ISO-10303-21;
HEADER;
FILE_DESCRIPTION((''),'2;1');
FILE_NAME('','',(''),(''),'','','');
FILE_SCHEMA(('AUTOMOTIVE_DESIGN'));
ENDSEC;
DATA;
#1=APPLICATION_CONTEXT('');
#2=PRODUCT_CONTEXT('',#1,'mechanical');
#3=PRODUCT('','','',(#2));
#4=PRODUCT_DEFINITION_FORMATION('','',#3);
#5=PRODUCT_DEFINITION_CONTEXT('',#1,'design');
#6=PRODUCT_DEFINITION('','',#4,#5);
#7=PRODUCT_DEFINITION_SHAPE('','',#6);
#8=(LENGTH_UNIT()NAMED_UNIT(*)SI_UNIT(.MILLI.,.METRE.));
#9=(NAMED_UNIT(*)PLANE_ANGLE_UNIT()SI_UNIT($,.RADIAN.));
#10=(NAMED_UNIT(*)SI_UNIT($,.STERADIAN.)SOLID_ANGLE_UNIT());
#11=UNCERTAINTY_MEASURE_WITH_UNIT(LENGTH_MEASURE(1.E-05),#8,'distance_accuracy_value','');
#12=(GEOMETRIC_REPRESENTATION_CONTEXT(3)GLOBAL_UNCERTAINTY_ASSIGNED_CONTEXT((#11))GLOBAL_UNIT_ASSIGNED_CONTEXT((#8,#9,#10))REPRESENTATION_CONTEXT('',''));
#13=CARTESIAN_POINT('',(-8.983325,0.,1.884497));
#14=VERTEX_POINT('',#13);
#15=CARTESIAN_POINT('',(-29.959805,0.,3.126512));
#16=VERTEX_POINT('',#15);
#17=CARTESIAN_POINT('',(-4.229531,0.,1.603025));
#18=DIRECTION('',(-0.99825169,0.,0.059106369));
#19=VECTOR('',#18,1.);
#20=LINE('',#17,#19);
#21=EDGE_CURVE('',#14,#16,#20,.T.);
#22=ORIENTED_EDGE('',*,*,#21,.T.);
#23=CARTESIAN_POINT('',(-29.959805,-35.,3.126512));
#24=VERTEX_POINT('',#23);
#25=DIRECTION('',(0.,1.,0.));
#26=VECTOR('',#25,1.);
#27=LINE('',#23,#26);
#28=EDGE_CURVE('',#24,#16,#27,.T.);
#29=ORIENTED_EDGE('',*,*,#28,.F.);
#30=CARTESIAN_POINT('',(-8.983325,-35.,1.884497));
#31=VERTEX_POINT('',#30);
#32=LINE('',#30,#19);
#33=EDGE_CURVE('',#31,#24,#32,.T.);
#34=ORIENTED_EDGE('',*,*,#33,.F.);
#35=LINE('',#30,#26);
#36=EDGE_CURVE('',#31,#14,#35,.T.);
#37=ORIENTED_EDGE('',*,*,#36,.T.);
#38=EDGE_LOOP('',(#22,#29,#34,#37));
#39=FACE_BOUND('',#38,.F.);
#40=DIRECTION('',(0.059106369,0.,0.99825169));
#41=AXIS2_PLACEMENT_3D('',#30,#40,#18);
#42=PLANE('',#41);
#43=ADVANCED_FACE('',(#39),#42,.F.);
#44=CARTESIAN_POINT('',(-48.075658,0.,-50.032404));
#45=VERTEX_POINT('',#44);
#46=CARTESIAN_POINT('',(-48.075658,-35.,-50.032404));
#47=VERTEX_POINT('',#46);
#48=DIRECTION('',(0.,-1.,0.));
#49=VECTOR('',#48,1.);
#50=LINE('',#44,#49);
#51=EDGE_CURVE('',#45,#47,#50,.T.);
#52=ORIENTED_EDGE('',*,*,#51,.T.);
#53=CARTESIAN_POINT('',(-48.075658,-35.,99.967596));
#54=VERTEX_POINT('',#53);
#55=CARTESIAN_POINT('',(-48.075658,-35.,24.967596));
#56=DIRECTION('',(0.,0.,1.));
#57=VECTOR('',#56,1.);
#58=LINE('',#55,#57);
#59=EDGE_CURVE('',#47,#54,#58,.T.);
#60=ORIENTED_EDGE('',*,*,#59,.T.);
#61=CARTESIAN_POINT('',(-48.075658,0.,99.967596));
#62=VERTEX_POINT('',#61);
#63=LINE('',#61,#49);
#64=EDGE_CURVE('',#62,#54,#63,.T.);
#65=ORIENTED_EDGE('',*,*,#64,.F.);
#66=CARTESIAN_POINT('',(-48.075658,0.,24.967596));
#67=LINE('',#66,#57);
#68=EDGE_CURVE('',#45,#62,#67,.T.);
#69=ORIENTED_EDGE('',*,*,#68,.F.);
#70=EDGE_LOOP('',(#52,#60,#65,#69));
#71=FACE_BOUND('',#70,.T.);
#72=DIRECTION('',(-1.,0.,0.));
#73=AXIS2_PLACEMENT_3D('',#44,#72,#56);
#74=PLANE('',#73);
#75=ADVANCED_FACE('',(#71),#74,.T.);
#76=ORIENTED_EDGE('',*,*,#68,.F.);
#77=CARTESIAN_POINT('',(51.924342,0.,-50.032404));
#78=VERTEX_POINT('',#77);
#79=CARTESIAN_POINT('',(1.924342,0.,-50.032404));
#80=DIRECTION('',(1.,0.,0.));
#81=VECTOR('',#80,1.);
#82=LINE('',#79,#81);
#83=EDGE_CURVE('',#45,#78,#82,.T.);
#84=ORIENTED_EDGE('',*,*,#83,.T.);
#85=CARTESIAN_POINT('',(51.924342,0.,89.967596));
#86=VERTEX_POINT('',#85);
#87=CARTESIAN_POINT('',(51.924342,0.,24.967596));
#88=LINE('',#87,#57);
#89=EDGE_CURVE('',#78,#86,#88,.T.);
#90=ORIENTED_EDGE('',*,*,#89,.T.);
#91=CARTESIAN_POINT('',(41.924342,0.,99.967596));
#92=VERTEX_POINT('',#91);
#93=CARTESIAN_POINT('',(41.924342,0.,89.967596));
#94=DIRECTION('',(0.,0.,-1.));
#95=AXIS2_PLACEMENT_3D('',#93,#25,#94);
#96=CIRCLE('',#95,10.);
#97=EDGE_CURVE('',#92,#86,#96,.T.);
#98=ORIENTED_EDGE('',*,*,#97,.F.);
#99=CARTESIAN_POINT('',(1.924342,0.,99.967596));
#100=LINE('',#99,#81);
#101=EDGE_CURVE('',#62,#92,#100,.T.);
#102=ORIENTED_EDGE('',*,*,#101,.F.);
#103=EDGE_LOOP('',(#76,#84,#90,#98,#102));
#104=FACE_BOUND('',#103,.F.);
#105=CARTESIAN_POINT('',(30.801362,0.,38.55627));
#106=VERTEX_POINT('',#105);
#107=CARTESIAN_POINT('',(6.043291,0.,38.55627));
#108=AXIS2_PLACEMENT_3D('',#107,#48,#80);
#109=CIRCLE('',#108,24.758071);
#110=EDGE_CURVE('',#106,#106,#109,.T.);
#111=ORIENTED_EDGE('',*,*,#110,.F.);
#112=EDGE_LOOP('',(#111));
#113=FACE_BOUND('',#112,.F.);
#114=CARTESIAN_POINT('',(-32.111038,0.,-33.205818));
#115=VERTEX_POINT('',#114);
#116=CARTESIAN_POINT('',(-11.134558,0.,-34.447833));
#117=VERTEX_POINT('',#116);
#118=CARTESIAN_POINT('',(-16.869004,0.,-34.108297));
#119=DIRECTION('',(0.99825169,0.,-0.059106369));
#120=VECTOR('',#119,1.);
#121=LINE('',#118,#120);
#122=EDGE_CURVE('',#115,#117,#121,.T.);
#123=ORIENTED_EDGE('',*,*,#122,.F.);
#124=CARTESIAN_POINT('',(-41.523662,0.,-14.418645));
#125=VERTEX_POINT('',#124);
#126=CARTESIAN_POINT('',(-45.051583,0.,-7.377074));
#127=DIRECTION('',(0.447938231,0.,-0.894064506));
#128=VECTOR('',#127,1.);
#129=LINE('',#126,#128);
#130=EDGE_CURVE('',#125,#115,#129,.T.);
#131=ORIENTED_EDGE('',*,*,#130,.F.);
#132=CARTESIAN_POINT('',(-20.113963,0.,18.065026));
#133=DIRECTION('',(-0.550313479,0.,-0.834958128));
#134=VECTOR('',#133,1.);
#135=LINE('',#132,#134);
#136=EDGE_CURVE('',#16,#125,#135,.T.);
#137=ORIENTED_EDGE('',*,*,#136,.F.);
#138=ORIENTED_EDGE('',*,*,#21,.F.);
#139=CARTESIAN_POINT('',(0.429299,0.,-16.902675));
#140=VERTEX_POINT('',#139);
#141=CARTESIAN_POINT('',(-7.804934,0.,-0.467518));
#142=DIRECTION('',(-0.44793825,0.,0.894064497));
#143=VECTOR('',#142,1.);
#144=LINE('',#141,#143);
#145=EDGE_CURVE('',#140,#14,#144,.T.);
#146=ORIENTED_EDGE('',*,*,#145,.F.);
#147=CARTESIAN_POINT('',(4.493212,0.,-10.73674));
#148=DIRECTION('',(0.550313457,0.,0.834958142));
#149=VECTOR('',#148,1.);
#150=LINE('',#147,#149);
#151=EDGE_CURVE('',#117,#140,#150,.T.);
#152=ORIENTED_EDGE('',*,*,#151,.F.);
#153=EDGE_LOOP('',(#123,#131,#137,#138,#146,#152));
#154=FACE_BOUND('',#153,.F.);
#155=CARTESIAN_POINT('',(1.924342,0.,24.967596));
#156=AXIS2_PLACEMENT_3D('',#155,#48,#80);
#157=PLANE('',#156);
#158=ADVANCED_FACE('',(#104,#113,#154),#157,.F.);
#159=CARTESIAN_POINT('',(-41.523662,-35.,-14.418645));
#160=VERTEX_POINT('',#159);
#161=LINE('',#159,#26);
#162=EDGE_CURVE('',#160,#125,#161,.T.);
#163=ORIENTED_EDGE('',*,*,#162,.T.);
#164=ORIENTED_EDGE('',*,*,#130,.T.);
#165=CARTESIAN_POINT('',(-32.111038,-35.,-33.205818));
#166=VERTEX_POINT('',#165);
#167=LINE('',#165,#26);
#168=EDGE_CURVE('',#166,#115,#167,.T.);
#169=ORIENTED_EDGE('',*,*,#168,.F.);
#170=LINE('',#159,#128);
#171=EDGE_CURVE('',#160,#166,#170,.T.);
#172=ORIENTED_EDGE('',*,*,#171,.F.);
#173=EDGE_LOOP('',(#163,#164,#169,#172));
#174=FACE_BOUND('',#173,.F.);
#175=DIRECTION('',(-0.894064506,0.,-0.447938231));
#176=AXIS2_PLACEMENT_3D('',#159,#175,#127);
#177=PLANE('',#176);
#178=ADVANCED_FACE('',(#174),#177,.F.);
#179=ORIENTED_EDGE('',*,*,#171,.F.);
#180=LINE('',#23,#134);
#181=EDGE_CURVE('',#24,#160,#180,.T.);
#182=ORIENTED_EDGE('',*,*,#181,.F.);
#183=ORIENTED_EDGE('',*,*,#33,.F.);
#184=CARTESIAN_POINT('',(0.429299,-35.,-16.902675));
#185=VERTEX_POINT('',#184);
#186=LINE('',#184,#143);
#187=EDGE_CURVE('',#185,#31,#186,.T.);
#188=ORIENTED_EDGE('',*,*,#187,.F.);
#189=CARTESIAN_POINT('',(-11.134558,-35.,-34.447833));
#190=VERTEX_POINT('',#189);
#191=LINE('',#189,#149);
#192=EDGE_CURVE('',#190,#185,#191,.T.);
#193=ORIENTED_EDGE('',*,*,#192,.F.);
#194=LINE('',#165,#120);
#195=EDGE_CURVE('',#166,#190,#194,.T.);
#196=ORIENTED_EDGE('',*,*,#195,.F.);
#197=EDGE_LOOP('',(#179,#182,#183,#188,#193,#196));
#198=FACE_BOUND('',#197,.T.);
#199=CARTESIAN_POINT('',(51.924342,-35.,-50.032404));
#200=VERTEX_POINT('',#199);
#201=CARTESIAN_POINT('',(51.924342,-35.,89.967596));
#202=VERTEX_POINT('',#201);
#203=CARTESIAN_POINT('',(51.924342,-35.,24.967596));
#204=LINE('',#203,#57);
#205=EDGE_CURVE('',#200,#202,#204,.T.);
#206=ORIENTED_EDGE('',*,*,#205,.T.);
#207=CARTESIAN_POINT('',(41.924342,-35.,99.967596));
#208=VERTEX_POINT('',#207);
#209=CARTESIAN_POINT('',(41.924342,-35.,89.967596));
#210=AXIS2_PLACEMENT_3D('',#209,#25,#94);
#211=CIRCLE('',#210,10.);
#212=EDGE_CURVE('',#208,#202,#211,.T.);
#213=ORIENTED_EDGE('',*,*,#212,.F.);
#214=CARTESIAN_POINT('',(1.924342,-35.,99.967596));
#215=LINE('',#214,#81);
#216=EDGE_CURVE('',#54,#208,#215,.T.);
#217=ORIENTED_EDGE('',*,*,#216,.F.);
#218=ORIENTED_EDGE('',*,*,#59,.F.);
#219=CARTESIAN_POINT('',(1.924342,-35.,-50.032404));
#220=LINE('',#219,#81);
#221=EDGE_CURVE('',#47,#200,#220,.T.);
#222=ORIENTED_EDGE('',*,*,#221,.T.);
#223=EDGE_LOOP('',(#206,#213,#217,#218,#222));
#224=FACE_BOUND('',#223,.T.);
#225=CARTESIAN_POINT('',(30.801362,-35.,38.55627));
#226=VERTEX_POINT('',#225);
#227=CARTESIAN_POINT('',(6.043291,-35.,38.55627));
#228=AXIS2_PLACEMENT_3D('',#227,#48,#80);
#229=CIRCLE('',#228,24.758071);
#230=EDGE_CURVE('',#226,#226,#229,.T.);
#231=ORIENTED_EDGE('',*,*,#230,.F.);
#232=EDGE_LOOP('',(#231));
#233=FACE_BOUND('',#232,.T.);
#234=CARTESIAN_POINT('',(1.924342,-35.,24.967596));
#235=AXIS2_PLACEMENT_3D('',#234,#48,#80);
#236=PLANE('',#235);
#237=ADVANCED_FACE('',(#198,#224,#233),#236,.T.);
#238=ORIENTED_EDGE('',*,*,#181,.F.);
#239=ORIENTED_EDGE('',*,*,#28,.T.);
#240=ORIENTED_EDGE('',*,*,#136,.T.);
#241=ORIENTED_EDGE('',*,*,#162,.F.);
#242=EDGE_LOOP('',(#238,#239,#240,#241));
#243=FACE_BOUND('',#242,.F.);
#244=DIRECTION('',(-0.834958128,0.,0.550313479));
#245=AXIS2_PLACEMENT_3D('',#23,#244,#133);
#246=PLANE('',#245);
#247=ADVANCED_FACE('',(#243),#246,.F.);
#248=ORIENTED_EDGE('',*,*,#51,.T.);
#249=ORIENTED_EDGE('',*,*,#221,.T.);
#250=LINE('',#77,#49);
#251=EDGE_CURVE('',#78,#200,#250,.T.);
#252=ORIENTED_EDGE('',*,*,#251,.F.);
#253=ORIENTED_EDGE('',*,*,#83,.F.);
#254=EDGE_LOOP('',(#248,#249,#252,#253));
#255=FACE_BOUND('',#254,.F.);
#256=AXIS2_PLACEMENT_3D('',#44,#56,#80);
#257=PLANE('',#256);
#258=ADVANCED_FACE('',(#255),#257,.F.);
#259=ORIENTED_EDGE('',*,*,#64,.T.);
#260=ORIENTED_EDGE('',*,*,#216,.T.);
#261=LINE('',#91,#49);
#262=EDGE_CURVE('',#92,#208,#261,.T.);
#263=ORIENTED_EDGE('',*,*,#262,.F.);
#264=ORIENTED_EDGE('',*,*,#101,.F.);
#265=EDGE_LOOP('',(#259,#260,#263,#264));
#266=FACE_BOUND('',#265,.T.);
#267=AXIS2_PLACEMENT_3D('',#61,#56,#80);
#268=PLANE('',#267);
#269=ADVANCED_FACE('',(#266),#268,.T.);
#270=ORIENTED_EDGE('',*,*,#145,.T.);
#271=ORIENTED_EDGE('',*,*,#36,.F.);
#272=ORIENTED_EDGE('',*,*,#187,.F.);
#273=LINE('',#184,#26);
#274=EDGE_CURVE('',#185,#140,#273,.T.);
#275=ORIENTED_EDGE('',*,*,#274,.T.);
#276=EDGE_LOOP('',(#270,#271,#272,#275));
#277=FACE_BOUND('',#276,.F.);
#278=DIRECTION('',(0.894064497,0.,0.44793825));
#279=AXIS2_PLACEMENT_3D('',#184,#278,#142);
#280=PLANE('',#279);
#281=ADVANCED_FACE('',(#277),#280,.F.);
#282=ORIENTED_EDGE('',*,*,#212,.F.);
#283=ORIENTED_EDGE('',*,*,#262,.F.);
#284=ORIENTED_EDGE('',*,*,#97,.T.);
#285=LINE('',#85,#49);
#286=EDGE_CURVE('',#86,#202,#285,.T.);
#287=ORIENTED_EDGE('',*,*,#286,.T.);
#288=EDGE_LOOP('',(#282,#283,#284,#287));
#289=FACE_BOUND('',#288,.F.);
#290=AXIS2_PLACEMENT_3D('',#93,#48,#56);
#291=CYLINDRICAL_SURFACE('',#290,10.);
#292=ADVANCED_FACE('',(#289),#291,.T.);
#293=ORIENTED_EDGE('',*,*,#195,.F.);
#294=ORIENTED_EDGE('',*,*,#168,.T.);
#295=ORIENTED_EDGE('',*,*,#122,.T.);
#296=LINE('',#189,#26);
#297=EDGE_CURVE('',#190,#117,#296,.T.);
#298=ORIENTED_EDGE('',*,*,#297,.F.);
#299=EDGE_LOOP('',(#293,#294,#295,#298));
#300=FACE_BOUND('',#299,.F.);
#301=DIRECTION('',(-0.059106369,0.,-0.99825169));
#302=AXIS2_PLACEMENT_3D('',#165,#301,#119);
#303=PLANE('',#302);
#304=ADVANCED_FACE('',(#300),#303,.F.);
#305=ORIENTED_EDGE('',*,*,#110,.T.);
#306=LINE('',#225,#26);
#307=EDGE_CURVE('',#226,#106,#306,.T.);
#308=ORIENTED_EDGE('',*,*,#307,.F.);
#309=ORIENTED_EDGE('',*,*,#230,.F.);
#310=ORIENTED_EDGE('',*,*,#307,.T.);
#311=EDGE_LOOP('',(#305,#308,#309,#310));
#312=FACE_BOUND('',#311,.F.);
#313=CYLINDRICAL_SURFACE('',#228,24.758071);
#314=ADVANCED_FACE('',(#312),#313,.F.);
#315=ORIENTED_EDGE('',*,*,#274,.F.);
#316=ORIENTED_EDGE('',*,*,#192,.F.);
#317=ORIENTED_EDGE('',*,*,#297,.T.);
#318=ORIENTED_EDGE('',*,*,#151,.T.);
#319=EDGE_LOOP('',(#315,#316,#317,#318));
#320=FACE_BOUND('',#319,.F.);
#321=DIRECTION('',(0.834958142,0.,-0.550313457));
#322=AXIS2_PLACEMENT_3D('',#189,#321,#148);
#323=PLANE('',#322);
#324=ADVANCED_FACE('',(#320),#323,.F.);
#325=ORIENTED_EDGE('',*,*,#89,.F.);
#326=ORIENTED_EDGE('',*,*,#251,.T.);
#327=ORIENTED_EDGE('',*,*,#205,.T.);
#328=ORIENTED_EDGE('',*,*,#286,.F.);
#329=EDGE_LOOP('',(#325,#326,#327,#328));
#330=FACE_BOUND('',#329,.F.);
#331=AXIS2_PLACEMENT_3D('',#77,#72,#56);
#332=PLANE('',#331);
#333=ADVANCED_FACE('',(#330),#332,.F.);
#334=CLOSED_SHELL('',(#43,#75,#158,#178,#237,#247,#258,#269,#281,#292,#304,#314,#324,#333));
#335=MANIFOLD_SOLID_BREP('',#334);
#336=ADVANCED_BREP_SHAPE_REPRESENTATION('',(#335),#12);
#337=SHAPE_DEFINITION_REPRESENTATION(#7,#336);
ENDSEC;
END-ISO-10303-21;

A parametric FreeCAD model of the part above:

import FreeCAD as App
import Part
import Sketcher
from FreeCAD import Vector
Q = App.Units.Quantity


def edges_at(feature, points):
    """Names of the edges that pass closest to the given points."""
    edges = feature.Shape.Edges
    near = lambda p: min(range(len(edges)), key=lambda i: edges[i].distToShape(Part.Vertex(*p))[0])
    return sorted({f"Edge{near(p) + 1}" for p in points})


def add_polygon(sketch, points):
    """Adds a closed chain of lines whose ends are joined by coincident constraints."""
    first, n = sketch.GeometryCount, len(points)
    for a, b in zip(points, points[1:] + points[:1]):
        sketch.addGeometry(Part.LineSegment(App.Vector(*a, 0), App.Vector(*b, 0)), False)
    for i in range(n):
        sketch.addConstraint(Sketcher.Constraint("Coincident", first + i, 2, first + (i + 1) % n, 1))

doc = App.newDocument("Part")
body = doc.addObject("PartDesign::Body", "Body")

# Sketch on XZ plane
sketch1 = doc.addObject("Sketcher::SketchObject", "Sketch")
body.addObject(sketch1)
sketch1.AttachmentSupport = (doc.XZ_Plane, [""])
sketch1.MapMode = "FlatFace"
add_polygon(sketch1, [(-48, 100), (-48, -50), (52, -50), (52, 100)])  # lines 0-3
sketch1.addConstraint([
    Sketcher.Constraint("Vertical", 0),
    Sketcher.Constraint("Horizontal", 1),
    Sketcher.Constraint("Vertical", 2),
    Sketcher.Constraint("Horizontal", 3),
    Sketcher.Constraint("DistanceX", 1, 1, 1, 2, Q("100 mm")),
    Sketcher.Constraint("DistanceY", 0, 2, 0, 1, Q("150 mm")),
    Sketcher.Constraint("DistanceX", 0, 2, -1, 1, Q("48.075658 mm")),
    Sketcher.Constraint("DistanceY", 0, 2, -1, 1, Q("50.032404 mm")),
])
pad1 = doc.addObject("PartDesign::Pad", "Pad")
body.addObject(pad1)
pad1.Profile = sketch1
pad1.Length = 35

# Sketch on XZ plane
sketch2 = doc.addObject("Sketcher::SketchObject", "Sketch001")
body.addObject(sketch2)
sketch2.AttachmentSupport = (doc.XZ_Plane, [""])
sketch2.MapMode = "FlatFace"
sketch2.AttachmentOffset = App.Placement(Vector(0, 0, 35), App.Rotation())
sketch2.addGeometry(Part.Circle(Vector(6.043291, 38.55627, 0), Vector(0, 0, 1), 24.758071), False)  # 0
add_polygon(sketch2, [(-11.134558, -34.447833), (0.429299, -16.902675), (-8.983325, 1.884497), (-29.959805, 3.126512), (-41.523662, -14.418645), (-32.111038, -33.205818)])  # lines 1-6
sketch2.addConstraint([
    Sketcher.Constraint("Diameter", 0, Q("49.516142 mm")),
    Sketcher.Constraint("DistanceX", -1, 1, 1, 2, Q("0.429299 mm")),
    Sketcher.Constraint("Distance", 1, Q("21.013219 mm")),
    Sketcher.Constraint("Distance", 5, Q("21.013219 mm")),
    Sketcher.Constraint("DistanceX", -1, 1, 0, 3, Q("6.043291 mm")),
    Sketcher.Constraint("DistanceY", -1, 1, 0, 3, Q("38.55627 mm")),
    Sketcher.Constraint("DistanceY", -1, 1, 3, 2, Q("3.126512 mm")),
    Sketcher.Constraint("DistanceY", 1, 2, 2, 2, Q("18.787172 mm")),
    Sketcher.Constraint("DistanceX", 3, 2, 2, 2, Q("20.97648 mm")),
    Sketcher.Constraint("DistanceX", 4, 2, 1, 2, Q("41.952961 mm")),
    Sketcher.Constraint("DistanceY", 1, 2, 4, 2, Q("2.48403 mm")),
    Sketcher.Constraint("DistanceY", 5, 2, 3, 2, Q("36.33233 mm")),
    Sketcher.Constraint("DistanceX", 5, 2, 0, 3, Q("38.154329 mm")),
    Sketcher.Constraint("DistanceX", 5, 2, 6, 2, Q("20.97648 mm")),
    Sketcher.Constraint("Distance", 2, Q("21.013218 mm")),
])
pocket1 = doc.addObject("PartDesign::Pocket", "Pocket")
body.addObject(pocket1)
pocket1.Profile = sketch2
pocket1.Length = 93
doc.recompute()

fillet = doc.addObject("PartDesign::Fillet", "Fillet")
body.addObject(fillet)
fillet.Base = (pocket1, edges_at(pocket1, [(51.924, -17.5, 99.968)]))
fillet.Radius = 10

doc.recompute()
